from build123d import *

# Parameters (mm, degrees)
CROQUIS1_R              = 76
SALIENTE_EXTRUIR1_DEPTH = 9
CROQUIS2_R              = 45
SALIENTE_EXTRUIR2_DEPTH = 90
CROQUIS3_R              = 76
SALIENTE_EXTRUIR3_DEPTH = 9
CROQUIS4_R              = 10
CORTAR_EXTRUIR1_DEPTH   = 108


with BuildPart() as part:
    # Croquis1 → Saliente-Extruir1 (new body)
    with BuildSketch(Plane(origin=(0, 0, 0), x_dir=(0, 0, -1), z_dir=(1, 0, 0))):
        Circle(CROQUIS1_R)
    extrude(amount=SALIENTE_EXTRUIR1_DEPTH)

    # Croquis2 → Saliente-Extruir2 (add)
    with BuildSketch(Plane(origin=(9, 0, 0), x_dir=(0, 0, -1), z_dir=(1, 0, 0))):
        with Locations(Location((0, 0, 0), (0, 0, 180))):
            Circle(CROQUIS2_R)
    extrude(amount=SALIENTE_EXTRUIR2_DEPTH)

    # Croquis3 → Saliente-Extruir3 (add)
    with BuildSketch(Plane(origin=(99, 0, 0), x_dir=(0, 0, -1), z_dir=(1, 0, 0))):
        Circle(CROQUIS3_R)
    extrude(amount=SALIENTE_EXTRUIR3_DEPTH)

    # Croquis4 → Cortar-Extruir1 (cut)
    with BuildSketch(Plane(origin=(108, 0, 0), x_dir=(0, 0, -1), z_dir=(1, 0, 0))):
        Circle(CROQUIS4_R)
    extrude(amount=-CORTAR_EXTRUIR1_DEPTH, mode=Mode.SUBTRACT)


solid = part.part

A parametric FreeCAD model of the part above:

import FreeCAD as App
import Part
import Sketcher

V = App.Vector
Q = App.Units.Quantity

doc = App.newDocument("Part")
body = doc.addObject("PartDesign::Body", "Body")

sketch1 = body.newObject("Sketcher::SketchObject", "Sketch")
sketch1.AttachmentSupport = (doc.getObject("YZ_Plane"), [""])
sketch1.MapMode = "FlatFace"
sketch1.addGeometry(Part.Circle(V(0, 0, 0), V(0, 0, 1), 76), False)
sketch1.addConstraint([
    Sketcher.Constraint("Coincident", 0, 3, -1, 1),
    Sketcher.Constraint("Diameter", 0, Q("152 mm")),
])
pad1 = body.newObject("PartDesign::Pad", "Pad")
pad1.Profile = sketch1
pad1.Length = 9

sketch2 = body.newObject("Sketcher::SketchObject", "Sketch001")
sketch2.AttachmentSupport = (doc.getObject("YZ_Plane"), [""])
sketch2.MapMode = "FlatFace"
sketch2.AttachmentOffset = App.Placement(V(0, 0, 9), App.Rotation())
sketch2.addGeometry(Part.Circle(V(0, 0, 0), V(0, 0, 1), 45), False)
sketch2.addConstraint([
    Sketcher.Constraint("Coincident", 0, 3, -1, 1),
    Sketcher.Constraint("Diameter", 0, Q("90 mm")),
])
pad2 = body.newObject("PartDesign::Pad", "Pad001")
pad2.Profile = sketch2
pad2.Length = 90

sketch3 = body.newObject("Sketcher::SketchObject", "Sketch002")
sketch3.AttachmentSupport = (doc.getObject("YZ_Plane"), [""])
sketch3.MapMode = "FlatFace"
sketch3.AttachmentOffset = App.Placement(V(0, 0, 99), App.Rotation())
sketch3.addGeometry(Part.Circle(V(0, 0, 0), V(0, 0, 1), 76), False)
sketch3.addConstraint([
    Sketcher.Constraint("Coincident", 0, 3, -1, 1),
    Sketcher.Constraint("Diameter", 0, Q("152 mm")),
])
pad3 = body.newObject("PartDesign::Pad", "Pad002")
pad3.Profile = sketch3
pad3.Length = 9

sketch4 = body.newObject("Sketcher::SketchObject", "Sketch003")
sketch4.AttachmentSupport = (doc.getObject("YZ_Plane"), [""])
sketch4.MapMode = "FlatFace"
sketch4.AttachmentOffset = App.Placement(V(0, 0, 108), App.Rotation())
sketch4.addGeometry(Part.Circle(V(0, 0, 0), V(0, 0, 1), 10), False)
sketch4.addConstraint([
    Sketcher.Constraint("Coincident", 0, 3, -1, 1),
    Sketcher.Constraint("Diameter", 0, Q("20 mm")),
])
pocket1 = body.newObject("PartDesign::Pocket", "Pocket")
pocket1.Profile = sketch4
pocket1.Length = 108

doc.recompute()
